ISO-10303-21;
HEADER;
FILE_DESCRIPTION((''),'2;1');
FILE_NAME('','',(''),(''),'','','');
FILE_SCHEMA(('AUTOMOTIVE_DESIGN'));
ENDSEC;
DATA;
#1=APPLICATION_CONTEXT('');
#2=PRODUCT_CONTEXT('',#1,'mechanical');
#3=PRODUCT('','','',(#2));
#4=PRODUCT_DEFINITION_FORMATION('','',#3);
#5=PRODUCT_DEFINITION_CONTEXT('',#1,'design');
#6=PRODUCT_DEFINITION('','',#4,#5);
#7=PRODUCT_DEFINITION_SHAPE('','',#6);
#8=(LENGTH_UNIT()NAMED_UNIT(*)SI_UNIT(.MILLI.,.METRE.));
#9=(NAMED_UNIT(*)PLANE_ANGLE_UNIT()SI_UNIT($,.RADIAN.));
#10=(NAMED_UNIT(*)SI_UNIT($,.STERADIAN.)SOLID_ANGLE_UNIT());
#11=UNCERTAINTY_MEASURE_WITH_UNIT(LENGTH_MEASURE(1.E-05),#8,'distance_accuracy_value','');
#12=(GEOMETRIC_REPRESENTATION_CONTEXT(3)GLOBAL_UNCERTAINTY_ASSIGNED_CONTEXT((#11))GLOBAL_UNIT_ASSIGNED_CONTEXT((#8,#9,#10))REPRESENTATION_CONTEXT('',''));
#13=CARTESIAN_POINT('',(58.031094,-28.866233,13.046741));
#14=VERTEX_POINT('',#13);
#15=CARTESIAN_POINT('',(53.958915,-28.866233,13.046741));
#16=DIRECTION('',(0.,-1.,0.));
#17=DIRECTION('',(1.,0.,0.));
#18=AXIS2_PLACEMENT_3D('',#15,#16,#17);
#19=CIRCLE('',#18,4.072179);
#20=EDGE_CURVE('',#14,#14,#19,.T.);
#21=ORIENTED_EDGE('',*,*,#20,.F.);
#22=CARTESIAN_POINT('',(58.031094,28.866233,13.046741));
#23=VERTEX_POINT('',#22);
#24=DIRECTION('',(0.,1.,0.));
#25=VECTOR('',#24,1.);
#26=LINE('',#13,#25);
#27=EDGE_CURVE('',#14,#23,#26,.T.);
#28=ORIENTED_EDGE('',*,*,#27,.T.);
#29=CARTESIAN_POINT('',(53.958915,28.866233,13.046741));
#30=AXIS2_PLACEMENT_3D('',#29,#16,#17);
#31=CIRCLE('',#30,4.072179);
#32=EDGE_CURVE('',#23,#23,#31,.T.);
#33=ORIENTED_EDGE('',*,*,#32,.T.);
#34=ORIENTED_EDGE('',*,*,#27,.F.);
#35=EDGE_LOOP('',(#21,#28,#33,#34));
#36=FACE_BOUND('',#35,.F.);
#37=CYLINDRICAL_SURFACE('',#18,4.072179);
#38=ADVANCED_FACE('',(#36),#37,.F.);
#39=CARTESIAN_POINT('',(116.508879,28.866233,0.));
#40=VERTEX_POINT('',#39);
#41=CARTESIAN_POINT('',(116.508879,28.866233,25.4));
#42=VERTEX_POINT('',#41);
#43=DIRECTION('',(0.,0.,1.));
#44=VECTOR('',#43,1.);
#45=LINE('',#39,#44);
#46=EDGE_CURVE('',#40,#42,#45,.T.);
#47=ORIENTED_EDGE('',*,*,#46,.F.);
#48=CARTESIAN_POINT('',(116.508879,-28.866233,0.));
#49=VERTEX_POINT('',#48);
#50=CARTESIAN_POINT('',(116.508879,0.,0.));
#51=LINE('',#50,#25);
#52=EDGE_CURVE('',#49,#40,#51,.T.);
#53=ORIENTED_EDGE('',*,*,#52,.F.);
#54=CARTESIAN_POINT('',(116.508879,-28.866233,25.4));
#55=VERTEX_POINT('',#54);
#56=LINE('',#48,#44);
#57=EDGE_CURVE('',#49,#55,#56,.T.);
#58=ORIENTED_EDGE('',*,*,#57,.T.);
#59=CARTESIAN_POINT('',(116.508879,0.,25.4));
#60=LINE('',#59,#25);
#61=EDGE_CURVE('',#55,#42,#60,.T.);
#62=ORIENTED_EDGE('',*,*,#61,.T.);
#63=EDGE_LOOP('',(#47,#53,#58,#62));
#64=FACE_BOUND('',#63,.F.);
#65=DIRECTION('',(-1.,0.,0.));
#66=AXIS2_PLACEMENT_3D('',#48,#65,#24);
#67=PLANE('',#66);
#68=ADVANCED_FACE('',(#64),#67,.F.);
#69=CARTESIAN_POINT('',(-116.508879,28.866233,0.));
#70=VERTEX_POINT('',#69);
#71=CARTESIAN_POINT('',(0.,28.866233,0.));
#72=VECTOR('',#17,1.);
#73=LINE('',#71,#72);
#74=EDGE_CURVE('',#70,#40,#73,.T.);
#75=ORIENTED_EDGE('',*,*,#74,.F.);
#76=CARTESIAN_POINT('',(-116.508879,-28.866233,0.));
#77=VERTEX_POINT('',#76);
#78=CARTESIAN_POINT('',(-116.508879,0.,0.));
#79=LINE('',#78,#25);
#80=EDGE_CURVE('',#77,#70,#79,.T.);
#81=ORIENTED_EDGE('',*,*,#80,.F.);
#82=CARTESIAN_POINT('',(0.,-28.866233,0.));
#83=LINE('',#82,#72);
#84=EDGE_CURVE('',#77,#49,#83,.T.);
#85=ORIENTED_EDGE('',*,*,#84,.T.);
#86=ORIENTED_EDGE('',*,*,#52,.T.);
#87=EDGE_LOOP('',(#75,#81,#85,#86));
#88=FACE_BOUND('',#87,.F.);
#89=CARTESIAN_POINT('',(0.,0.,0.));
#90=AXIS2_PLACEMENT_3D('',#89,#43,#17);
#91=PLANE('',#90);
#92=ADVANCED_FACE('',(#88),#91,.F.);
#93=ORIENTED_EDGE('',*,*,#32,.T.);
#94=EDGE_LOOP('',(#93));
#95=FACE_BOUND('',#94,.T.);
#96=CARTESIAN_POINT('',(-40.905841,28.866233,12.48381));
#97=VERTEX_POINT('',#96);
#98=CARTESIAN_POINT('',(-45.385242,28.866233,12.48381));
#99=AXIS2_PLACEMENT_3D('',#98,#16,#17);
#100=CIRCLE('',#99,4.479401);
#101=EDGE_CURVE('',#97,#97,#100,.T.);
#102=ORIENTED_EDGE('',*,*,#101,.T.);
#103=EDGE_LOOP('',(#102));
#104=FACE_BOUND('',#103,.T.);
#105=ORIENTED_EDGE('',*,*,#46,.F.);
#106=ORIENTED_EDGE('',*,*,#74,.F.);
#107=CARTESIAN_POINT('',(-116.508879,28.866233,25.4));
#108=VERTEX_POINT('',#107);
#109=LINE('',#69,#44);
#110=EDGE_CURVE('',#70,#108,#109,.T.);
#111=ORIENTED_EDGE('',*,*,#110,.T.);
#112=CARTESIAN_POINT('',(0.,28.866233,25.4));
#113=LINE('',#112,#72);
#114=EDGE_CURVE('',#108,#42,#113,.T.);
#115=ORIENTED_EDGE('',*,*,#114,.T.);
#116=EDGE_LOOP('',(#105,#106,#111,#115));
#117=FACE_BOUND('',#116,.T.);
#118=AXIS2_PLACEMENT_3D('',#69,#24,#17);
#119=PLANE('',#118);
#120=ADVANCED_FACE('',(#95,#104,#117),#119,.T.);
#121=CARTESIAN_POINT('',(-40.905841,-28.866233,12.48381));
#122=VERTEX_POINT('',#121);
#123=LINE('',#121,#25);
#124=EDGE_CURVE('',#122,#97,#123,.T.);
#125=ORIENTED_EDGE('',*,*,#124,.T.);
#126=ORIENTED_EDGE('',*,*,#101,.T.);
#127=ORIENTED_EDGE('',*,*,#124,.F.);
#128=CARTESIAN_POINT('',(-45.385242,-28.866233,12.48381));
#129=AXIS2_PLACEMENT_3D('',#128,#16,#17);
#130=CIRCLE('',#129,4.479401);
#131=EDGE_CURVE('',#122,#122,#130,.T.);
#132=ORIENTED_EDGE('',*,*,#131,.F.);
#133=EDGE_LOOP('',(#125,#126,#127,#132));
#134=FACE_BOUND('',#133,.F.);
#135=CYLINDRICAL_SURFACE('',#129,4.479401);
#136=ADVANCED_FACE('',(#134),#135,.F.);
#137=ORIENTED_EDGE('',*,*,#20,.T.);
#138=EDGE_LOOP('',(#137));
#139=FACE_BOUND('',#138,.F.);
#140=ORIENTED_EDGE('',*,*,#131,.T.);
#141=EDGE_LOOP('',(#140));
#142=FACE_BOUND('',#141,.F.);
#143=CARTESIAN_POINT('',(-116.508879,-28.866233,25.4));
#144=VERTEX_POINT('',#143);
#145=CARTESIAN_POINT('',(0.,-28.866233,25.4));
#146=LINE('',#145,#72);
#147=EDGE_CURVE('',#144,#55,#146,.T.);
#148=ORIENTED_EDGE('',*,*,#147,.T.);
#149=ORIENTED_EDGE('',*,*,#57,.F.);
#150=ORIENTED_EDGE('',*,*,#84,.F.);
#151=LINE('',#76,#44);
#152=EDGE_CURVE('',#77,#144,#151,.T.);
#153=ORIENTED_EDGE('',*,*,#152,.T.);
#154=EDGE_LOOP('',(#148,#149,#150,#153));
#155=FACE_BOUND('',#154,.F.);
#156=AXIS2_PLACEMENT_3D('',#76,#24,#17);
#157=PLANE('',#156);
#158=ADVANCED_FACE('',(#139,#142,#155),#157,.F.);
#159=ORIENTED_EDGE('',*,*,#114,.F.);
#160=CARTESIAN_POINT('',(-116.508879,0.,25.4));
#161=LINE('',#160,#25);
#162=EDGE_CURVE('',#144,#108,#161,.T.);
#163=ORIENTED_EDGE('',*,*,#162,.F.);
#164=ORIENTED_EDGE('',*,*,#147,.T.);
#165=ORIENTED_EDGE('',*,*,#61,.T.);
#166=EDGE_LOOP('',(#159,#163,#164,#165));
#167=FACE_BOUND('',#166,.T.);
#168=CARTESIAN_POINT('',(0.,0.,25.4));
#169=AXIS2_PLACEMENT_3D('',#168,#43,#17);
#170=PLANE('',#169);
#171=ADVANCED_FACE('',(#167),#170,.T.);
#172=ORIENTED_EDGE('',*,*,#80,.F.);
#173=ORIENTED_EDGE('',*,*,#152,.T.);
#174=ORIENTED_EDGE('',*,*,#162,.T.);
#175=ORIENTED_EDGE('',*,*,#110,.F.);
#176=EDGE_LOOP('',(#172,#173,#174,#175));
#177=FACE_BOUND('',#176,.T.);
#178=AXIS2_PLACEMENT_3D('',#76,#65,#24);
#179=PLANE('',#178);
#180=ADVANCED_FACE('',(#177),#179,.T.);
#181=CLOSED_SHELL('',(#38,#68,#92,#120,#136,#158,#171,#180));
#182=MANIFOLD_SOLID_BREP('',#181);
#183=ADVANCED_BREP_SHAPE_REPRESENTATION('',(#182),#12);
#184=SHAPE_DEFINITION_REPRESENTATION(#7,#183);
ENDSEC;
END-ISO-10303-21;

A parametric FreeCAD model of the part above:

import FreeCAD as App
import Part
import Sketcher
Q = App.Units.Quantity


def add_polygon(sketch, points):
    """Adds a closed chain of lines whose ends are joined by coincident constraints."""
    first, n = sketch.GeometryCount, len(points)
    for a, b in zip(points, points[1:] + points[:1]):
        sketch.addGeometry(Part.LineSegment(App.Vector(*a, 0), App.Vector(*b, 0)), False)
    for i in range(n):
        sketch.addConstraint(Sketcher.Constraint("Coincident", first + i, 2, first + (i + 1) % n, 1))

doc = App.newDocument("Part")
body = doc.addObject("PartDesign::Body", "Body")

# Sketch on XY plane
sketch1 = body.newObject("Sketcher::SketchObject", "Sketch")
sketch1.AttachmentSupport = (doc.getObject("XY_Plane"), [""])
sketch1.MapMode = "FlatFace"
add_polygon(sketch1, [(-116.508879, 28.866233), (-116.508879, -28.866233), (116.508879, -28.866233), (116.508879, 28.866233)])  # lines 0-3
sketch1.addConstraint([
    Sketcher.Constraint("Vertical", 0),
    Sketcher.Constraint("Horizontal", 1),
    Sketcher.Constraint("Vertical", 2),
    Sketcher.Constraint("Horizontal", 3),
    Sketcher.Constraint("Symmetric", 0, 2, 2, 2, -1, 1),
    Sketcher.Constraint("DistanceX", 1, 1, 1, 2, Q("233.017758 mm")),
    Sketcher.Constraint("DistanceY", 0, 2, 0, 1, Q("57.732466 mm")),
])
pad1 = body.newObject("PartDesign::Pad", "Pad")
pad1.Profile = sketch1
pad1.Length = Q("1 in")

# Sketch on XZ plane
sketch2 = body.newObject("Sketcher::SketchObject", "Sketch001")
sketch2.AttachmentSupport = (doc.getObject("XZ_Plane"), [""])
sketch2.MapMode = "FlatFace"
sketch2.AttachmentOffset = App.Placement(App.Vector(0, 0, 28.866233), App.Rotation())
sketch2.addGeometry([
    Part.Circle(App.Vector(-45.385242, 12.48381, 0), App.Vector(0, 0, 1), 4.479401),
    Part.Circle(App.Vector(53.958915, 13.046741, 0), App.Vector(0, 0, 1), 4.072179),
], False)
sketch2.addConstraint([
    Sketcher.Constraint("Diameter", 0, Q("8.958802 mm")),
    Sketcher.Constraint("Diameter", 1, Q("8.144358 mm")),
    Sketcher.Constraint("DistanceX", 0, 3, -1, 1, Q("45.385242 mm")),
    Sketcher.Constraint("DistanceY", -1, 1, 0, 3, Q("12.48381 mm")),
    Sketcher.Constraint("DistanceY", -1, 1, 1, 3, Q("13.046741 mm")),
    Sketcher.Constraint("DistanceX", -1, 1, 1, 3, Q("53.958915 mm")),
])
pocket1 = body.newObject("PartDesign::Pocket", "Pocket")
pocket1.Profile = sketch2
pocket1.Type = "ThroughAll"

doc.recompute()
